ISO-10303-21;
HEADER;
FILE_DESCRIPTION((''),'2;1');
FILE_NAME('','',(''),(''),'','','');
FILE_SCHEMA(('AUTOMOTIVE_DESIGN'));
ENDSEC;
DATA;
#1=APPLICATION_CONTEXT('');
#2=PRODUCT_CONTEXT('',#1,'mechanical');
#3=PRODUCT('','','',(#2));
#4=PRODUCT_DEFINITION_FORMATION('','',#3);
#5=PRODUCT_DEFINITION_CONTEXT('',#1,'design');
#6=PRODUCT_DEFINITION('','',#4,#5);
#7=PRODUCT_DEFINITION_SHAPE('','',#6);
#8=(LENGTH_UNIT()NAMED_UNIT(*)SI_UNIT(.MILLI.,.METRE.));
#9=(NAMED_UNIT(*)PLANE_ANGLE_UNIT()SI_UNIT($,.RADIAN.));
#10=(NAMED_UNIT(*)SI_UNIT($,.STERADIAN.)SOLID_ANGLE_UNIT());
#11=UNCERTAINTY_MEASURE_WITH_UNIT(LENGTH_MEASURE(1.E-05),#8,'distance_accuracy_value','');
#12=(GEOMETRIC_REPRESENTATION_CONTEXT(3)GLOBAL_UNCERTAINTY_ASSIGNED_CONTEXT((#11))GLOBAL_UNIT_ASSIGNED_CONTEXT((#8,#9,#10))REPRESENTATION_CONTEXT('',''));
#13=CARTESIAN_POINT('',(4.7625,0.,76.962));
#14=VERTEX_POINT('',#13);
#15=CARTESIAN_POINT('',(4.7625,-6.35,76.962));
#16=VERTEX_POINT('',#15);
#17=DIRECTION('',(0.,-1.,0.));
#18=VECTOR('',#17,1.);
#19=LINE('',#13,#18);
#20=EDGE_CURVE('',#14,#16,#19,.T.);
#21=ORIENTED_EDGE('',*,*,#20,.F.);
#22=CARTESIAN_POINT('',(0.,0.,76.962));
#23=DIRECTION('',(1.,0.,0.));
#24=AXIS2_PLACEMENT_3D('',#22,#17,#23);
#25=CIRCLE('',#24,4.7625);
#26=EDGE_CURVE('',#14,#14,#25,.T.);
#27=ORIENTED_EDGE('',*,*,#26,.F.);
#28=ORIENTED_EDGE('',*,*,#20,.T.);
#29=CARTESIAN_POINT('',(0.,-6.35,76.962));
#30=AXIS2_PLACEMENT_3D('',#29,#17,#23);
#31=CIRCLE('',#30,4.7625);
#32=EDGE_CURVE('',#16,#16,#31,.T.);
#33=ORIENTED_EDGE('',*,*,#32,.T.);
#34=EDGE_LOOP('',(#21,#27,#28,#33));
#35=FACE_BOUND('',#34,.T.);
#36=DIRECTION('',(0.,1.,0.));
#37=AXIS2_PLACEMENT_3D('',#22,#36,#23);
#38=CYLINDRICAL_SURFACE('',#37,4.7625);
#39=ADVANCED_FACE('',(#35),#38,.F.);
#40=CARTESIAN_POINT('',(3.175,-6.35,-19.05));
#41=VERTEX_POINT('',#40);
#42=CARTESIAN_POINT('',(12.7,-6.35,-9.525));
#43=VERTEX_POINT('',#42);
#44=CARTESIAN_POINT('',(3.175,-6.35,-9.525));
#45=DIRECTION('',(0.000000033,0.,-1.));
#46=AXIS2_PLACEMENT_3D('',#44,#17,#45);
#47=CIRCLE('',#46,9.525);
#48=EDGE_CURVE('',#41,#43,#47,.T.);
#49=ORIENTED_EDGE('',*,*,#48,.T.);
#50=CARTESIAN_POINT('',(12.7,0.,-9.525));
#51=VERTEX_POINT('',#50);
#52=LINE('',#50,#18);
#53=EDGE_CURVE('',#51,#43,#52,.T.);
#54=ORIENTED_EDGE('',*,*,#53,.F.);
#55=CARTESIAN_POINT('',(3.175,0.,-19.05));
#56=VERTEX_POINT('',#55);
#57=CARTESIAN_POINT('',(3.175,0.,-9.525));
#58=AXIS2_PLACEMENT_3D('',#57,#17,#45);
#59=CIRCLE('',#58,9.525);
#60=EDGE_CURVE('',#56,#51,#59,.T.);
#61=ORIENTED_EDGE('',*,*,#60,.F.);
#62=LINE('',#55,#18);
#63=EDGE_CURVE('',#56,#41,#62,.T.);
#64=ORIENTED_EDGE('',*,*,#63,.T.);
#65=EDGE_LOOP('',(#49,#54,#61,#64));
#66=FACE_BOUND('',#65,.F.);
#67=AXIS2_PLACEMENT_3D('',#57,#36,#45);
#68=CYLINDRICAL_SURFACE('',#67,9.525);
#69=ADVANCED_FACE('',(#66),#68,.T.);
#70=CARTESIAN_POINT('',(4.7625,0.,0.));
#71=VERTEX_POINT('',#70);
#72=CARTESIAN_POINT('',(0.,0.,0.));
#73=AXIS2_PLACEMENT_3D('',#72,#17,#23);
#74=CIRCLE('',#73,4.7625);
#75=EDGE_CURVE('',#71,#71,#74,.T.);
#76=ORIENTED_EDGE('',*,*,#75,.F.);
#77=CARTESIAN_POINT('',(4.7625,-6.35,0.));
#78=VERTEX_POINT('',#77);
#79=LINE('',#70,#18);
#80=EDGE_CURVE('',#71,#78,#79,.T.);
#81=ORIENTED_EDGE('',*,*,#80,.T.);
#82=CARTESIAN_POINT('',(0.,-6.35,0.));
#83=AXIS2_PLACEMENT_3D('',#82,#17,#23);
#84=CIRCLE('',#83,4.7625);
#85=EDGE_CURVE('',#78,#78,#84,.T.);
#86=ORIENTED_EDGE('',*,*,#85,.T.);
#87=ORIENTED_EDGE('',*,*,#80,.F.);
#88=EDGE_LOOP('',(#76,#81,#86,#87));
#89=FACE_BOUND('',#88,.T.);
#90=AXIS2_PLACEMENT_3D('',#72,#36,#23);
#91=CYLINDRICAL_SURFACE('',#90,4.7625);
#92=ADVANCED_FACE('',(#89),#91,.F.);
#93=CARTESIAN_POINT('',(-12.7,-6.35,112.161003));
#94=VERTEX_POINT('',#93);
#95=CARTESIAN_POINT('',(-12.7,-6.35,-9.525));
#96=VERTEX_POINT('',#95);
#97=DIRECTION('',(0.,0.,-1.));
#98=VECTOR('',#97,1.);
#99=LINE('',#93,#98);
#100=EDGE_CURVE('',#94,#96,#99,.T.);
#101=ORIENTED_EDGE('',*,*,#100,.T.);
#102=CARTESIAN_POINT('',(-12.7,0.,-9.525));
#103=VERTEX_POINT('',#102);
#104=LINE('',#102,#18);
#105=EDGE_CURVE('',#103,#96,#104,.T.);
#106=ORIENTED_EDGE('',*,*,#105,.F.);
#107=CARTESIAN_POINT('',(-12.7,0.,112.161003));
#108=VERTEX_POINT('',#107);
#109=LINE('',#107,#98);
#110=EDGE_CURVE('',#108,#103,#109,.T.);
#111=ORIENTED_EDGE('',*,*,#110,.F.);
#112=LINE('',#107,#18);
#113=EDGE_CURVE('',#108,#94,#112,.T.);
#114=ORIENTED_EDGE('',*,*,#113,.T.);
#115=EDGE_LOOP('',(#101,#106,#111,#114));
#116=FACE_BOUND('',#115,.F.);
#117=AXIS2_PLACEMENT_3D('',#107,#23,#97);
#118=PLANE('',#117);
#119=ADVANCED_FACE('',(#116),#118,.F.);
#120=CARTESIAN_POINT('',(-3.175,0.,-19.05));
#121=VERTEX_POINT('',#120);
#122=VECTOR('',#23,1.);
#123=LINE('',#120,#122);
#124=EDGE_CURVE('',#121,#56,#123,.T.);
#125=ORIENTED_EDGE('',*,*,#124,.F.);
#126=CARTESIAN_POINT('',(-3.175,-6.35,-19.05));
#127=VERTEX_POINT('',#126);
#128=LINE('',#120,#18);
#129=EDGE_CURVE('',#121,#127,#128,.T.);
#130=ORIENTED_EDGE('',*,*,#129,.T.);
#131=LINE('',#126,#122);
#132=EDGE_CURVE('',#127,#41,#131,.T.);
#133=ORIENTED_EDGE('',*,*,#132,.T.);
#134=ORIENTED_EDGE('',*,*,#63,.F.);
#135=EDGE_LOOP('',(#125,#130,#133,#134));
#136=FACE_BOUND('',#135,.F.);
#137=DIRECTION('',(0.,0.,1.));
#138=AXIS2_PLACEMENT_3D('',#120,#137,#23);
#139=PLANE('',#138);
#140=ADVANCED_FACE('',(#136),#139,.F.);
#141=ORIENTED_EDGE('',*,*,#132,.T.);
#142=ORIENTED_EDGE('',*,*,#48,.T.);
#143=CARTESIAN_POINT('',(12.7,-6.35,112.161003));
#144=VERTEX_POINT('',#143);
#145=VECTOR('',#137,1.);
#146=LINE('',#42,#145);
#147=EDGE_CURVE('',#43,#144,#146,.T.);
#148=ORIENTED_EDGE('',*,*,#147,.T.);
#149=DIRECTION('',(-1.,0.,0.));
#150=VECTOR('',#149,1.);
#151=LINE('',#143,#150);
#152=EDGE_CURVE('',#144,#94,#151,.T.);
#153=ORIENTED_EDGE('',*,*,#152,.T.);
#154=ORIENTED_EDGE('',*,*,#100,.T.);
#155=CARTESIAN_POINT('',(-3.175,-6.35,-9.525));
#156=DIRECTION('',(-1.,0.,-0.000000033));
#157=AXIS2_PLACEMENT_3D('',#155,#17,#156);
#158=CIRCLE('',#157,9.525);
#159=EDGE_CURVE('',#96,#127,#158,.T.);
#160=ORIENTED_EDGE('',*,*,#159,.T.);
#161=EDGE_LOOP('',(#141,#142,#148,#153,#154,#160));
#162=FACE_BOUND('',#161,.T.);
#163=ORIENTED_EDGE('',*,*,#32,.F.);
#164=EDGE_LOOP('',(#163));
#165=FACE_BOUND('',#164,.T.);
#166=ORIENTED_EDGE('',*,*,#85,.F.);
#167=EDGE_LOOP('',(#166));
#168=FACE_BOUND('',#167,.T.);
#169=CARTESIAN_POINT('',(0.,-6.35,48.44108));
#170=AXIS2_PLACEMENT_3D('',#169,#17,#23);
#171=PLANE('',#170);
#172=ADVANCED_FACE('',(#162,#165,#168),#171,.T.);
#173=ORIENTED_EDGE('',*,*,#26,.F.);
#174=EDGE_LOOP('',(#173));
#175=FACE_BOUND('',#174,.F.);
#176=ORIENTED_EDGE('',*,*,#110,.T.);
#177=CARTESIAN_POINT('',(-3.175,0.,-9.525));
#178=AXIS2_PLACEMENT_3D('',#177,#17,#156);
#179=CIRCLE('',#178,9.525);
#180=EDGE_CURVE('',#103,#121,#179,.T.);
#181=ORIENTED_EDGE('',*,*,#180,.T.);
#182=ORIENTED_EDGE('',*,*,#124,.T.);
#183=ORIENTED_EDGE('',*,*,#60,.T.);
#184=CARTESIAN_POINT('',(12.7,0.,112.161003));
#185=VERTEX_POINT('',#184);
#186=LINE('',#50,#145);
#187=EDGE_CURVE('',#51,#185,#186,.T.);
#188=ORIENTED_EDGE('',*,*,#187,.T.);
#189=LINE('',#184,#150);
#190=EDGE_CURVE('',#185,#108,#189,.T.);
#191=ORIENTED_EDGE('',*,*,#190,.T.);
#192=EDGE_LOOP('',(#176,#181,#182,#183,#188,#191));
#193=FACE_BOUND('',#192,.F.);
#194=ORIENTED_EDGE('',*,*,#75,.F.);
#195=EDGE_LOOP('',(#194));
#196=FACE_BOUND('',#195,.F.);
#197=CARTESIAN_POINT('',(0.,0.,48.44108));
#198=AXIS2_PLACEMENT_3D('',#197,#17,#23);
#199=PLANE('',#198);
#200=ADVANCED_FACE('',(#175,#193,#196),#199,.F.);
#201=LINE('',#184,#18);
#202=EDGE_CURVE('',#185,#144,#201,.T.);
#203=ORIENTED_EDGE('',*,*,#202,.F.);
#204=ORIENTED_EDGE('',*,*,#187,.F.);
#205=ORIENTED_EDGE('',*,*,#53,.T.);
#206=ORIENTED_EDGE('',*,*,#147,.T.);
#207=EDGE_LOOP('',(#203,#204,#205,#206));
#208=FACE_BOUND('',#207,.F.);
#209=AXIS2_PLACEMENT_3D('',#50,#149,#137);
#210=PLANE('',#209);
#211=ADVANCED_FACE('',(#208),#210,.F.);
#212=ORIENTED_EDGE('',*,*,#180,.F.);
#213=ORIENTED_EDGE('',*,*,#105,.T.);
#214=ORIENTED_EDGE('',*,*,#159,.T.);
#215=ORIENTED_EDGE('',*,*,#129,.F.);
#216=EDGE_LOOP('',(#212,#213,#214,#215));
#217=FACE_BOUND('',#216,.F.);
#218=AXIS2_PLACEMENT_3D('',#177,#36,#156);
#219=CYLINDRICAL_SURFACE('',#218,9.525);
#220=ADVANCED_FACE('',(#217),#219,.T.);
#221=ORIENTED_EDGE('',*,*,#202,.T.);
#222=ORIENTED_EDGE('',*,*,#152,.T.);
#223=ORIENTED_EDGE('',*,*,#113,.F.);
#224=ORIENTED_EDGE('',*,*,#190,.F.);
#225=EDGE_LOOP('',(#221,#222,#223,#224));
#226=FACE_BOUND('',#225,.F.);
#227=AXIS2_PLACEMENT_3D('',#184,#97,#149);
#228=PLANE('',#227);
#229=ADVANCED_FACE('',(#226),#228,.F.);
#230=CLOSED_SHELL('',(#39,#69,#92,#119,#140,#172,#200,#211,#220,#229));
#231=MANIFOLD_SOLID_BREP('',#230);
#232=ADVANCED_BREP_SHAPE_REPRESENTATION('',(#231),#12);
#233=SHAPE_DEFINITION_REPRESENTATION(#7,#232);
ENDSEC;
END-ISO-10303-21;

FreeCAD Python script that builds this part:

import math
import FreeCAD as App
import Part
import Sketcher
Q = App.Units.Quantity

doc = App.newDocument("Part")
body = doc.addObject("PartDesign::Body", "Body")

sketch1 = doc.addObject("Sketcher::SketchObject", "Sketch")
body.addObject(sketch1)
sketch1.AttachmentSupport = (doc.XZ_Plane, [""])
sketch1.MapMode = "FlatFace"
sketch1.addGeometry([
    Part.ArcOfCircle(Part.Circle(App.Vector(3.2, -9.5, 0), App.Vector(0, 0, 1), 9.5), math.radians(-90), math.radians(0)),
    Part.LineSegment(App.Vector(12.7, -9.5, 0), App.Vector(12.7, 112.2, 0)),
    Part.LineSegment(App.Vector(12.7, 112.2, 0), App.Vector(-12.7, 112.2, 0)),
    Part.LineSegment(App.Vector(-12.7, 112.2, 0), App.Vector(-12.7, -9.5, 0)),
    Part.ArcOfCircle(Part.Circle(App.Vector(-3.2, -9.5, 0), App.Vector(0, 0, 1), 9.5), math.radians(-180), math.radians(-90)),
    Part.LineSegment(App.Vector(-3.2, -19.1, 0), App.Vector(3.2, -19.1, 0)),
    Part.Circle(App.Vector(0, 0, 0), App.Vector(0, 0, 1), 4.8),
    Part.Circle(App.Vector(0, 77, 0), App.Vector(0, 0, 1), 4.8),
], False)
sketch1.addConstraint([
    Sketcher.Constraint("Tangent", 0, 2, 1, 1),
    Sketcher.Constraint("Coincident", 1, 2, 2, 1),
    Sketcher.Constraint("Coincident", 2, 2, 3, 1),
    Sketcher.Constraint("Tangent", 3, 2, 4, 1),
    Sketcher.Constraint("Tangent", 4, 2, 5, 1),
    Sketcher.Constraint("Tangent", 5, 2, 0, 1),
    Sketcher.Constraint("Vertical", 1),
    Sketcher.Constraint("Horizontal", 2),
    Sketcher.Constraint("Vertical", 3),
    Sketcher.Constraint("Horizontal", 5),
    Sketcher.Constraint("Coincident", 6, 3, -1, 1),
    Sketcher.Constraint("Equal", 0, 4),
    Sketcher.Constraint("Equal", 6, 7),
    Sketcher.Constraint("PointOnObject", 7, 3, -2),
    Sketcher.Constraint("DistanceX", 2, 2, 2, 1, Q("1 in")),
    Sketcher.Constraint("Diameter", 6, Q("0.375 in")),
    Sketcher.Constraint("Radius", 0, Q("0.375 in")),
    Sketcher.Constraint("DistanceX", -1, 1, 0, 2, Q("0.5 in")),
    Sketcher.Constraint("DistanceY", -1, 1, 7, 3, Q("3.03 in")),
    Sketcher.Constraint("DistanceY", 4, 2, -1, 1, Q("0.75 in")),
    Sketcher.Constraint("DistanceY", 1, 1, 1, 2, 121.686003),
])
pad1 = doc.addObject("PartDesign::Pad", "Pad")
body.addObject(pad1)
pad1.Profile = sketch1
pad1.Length = Q("0.25 in")

doc.recompute()
